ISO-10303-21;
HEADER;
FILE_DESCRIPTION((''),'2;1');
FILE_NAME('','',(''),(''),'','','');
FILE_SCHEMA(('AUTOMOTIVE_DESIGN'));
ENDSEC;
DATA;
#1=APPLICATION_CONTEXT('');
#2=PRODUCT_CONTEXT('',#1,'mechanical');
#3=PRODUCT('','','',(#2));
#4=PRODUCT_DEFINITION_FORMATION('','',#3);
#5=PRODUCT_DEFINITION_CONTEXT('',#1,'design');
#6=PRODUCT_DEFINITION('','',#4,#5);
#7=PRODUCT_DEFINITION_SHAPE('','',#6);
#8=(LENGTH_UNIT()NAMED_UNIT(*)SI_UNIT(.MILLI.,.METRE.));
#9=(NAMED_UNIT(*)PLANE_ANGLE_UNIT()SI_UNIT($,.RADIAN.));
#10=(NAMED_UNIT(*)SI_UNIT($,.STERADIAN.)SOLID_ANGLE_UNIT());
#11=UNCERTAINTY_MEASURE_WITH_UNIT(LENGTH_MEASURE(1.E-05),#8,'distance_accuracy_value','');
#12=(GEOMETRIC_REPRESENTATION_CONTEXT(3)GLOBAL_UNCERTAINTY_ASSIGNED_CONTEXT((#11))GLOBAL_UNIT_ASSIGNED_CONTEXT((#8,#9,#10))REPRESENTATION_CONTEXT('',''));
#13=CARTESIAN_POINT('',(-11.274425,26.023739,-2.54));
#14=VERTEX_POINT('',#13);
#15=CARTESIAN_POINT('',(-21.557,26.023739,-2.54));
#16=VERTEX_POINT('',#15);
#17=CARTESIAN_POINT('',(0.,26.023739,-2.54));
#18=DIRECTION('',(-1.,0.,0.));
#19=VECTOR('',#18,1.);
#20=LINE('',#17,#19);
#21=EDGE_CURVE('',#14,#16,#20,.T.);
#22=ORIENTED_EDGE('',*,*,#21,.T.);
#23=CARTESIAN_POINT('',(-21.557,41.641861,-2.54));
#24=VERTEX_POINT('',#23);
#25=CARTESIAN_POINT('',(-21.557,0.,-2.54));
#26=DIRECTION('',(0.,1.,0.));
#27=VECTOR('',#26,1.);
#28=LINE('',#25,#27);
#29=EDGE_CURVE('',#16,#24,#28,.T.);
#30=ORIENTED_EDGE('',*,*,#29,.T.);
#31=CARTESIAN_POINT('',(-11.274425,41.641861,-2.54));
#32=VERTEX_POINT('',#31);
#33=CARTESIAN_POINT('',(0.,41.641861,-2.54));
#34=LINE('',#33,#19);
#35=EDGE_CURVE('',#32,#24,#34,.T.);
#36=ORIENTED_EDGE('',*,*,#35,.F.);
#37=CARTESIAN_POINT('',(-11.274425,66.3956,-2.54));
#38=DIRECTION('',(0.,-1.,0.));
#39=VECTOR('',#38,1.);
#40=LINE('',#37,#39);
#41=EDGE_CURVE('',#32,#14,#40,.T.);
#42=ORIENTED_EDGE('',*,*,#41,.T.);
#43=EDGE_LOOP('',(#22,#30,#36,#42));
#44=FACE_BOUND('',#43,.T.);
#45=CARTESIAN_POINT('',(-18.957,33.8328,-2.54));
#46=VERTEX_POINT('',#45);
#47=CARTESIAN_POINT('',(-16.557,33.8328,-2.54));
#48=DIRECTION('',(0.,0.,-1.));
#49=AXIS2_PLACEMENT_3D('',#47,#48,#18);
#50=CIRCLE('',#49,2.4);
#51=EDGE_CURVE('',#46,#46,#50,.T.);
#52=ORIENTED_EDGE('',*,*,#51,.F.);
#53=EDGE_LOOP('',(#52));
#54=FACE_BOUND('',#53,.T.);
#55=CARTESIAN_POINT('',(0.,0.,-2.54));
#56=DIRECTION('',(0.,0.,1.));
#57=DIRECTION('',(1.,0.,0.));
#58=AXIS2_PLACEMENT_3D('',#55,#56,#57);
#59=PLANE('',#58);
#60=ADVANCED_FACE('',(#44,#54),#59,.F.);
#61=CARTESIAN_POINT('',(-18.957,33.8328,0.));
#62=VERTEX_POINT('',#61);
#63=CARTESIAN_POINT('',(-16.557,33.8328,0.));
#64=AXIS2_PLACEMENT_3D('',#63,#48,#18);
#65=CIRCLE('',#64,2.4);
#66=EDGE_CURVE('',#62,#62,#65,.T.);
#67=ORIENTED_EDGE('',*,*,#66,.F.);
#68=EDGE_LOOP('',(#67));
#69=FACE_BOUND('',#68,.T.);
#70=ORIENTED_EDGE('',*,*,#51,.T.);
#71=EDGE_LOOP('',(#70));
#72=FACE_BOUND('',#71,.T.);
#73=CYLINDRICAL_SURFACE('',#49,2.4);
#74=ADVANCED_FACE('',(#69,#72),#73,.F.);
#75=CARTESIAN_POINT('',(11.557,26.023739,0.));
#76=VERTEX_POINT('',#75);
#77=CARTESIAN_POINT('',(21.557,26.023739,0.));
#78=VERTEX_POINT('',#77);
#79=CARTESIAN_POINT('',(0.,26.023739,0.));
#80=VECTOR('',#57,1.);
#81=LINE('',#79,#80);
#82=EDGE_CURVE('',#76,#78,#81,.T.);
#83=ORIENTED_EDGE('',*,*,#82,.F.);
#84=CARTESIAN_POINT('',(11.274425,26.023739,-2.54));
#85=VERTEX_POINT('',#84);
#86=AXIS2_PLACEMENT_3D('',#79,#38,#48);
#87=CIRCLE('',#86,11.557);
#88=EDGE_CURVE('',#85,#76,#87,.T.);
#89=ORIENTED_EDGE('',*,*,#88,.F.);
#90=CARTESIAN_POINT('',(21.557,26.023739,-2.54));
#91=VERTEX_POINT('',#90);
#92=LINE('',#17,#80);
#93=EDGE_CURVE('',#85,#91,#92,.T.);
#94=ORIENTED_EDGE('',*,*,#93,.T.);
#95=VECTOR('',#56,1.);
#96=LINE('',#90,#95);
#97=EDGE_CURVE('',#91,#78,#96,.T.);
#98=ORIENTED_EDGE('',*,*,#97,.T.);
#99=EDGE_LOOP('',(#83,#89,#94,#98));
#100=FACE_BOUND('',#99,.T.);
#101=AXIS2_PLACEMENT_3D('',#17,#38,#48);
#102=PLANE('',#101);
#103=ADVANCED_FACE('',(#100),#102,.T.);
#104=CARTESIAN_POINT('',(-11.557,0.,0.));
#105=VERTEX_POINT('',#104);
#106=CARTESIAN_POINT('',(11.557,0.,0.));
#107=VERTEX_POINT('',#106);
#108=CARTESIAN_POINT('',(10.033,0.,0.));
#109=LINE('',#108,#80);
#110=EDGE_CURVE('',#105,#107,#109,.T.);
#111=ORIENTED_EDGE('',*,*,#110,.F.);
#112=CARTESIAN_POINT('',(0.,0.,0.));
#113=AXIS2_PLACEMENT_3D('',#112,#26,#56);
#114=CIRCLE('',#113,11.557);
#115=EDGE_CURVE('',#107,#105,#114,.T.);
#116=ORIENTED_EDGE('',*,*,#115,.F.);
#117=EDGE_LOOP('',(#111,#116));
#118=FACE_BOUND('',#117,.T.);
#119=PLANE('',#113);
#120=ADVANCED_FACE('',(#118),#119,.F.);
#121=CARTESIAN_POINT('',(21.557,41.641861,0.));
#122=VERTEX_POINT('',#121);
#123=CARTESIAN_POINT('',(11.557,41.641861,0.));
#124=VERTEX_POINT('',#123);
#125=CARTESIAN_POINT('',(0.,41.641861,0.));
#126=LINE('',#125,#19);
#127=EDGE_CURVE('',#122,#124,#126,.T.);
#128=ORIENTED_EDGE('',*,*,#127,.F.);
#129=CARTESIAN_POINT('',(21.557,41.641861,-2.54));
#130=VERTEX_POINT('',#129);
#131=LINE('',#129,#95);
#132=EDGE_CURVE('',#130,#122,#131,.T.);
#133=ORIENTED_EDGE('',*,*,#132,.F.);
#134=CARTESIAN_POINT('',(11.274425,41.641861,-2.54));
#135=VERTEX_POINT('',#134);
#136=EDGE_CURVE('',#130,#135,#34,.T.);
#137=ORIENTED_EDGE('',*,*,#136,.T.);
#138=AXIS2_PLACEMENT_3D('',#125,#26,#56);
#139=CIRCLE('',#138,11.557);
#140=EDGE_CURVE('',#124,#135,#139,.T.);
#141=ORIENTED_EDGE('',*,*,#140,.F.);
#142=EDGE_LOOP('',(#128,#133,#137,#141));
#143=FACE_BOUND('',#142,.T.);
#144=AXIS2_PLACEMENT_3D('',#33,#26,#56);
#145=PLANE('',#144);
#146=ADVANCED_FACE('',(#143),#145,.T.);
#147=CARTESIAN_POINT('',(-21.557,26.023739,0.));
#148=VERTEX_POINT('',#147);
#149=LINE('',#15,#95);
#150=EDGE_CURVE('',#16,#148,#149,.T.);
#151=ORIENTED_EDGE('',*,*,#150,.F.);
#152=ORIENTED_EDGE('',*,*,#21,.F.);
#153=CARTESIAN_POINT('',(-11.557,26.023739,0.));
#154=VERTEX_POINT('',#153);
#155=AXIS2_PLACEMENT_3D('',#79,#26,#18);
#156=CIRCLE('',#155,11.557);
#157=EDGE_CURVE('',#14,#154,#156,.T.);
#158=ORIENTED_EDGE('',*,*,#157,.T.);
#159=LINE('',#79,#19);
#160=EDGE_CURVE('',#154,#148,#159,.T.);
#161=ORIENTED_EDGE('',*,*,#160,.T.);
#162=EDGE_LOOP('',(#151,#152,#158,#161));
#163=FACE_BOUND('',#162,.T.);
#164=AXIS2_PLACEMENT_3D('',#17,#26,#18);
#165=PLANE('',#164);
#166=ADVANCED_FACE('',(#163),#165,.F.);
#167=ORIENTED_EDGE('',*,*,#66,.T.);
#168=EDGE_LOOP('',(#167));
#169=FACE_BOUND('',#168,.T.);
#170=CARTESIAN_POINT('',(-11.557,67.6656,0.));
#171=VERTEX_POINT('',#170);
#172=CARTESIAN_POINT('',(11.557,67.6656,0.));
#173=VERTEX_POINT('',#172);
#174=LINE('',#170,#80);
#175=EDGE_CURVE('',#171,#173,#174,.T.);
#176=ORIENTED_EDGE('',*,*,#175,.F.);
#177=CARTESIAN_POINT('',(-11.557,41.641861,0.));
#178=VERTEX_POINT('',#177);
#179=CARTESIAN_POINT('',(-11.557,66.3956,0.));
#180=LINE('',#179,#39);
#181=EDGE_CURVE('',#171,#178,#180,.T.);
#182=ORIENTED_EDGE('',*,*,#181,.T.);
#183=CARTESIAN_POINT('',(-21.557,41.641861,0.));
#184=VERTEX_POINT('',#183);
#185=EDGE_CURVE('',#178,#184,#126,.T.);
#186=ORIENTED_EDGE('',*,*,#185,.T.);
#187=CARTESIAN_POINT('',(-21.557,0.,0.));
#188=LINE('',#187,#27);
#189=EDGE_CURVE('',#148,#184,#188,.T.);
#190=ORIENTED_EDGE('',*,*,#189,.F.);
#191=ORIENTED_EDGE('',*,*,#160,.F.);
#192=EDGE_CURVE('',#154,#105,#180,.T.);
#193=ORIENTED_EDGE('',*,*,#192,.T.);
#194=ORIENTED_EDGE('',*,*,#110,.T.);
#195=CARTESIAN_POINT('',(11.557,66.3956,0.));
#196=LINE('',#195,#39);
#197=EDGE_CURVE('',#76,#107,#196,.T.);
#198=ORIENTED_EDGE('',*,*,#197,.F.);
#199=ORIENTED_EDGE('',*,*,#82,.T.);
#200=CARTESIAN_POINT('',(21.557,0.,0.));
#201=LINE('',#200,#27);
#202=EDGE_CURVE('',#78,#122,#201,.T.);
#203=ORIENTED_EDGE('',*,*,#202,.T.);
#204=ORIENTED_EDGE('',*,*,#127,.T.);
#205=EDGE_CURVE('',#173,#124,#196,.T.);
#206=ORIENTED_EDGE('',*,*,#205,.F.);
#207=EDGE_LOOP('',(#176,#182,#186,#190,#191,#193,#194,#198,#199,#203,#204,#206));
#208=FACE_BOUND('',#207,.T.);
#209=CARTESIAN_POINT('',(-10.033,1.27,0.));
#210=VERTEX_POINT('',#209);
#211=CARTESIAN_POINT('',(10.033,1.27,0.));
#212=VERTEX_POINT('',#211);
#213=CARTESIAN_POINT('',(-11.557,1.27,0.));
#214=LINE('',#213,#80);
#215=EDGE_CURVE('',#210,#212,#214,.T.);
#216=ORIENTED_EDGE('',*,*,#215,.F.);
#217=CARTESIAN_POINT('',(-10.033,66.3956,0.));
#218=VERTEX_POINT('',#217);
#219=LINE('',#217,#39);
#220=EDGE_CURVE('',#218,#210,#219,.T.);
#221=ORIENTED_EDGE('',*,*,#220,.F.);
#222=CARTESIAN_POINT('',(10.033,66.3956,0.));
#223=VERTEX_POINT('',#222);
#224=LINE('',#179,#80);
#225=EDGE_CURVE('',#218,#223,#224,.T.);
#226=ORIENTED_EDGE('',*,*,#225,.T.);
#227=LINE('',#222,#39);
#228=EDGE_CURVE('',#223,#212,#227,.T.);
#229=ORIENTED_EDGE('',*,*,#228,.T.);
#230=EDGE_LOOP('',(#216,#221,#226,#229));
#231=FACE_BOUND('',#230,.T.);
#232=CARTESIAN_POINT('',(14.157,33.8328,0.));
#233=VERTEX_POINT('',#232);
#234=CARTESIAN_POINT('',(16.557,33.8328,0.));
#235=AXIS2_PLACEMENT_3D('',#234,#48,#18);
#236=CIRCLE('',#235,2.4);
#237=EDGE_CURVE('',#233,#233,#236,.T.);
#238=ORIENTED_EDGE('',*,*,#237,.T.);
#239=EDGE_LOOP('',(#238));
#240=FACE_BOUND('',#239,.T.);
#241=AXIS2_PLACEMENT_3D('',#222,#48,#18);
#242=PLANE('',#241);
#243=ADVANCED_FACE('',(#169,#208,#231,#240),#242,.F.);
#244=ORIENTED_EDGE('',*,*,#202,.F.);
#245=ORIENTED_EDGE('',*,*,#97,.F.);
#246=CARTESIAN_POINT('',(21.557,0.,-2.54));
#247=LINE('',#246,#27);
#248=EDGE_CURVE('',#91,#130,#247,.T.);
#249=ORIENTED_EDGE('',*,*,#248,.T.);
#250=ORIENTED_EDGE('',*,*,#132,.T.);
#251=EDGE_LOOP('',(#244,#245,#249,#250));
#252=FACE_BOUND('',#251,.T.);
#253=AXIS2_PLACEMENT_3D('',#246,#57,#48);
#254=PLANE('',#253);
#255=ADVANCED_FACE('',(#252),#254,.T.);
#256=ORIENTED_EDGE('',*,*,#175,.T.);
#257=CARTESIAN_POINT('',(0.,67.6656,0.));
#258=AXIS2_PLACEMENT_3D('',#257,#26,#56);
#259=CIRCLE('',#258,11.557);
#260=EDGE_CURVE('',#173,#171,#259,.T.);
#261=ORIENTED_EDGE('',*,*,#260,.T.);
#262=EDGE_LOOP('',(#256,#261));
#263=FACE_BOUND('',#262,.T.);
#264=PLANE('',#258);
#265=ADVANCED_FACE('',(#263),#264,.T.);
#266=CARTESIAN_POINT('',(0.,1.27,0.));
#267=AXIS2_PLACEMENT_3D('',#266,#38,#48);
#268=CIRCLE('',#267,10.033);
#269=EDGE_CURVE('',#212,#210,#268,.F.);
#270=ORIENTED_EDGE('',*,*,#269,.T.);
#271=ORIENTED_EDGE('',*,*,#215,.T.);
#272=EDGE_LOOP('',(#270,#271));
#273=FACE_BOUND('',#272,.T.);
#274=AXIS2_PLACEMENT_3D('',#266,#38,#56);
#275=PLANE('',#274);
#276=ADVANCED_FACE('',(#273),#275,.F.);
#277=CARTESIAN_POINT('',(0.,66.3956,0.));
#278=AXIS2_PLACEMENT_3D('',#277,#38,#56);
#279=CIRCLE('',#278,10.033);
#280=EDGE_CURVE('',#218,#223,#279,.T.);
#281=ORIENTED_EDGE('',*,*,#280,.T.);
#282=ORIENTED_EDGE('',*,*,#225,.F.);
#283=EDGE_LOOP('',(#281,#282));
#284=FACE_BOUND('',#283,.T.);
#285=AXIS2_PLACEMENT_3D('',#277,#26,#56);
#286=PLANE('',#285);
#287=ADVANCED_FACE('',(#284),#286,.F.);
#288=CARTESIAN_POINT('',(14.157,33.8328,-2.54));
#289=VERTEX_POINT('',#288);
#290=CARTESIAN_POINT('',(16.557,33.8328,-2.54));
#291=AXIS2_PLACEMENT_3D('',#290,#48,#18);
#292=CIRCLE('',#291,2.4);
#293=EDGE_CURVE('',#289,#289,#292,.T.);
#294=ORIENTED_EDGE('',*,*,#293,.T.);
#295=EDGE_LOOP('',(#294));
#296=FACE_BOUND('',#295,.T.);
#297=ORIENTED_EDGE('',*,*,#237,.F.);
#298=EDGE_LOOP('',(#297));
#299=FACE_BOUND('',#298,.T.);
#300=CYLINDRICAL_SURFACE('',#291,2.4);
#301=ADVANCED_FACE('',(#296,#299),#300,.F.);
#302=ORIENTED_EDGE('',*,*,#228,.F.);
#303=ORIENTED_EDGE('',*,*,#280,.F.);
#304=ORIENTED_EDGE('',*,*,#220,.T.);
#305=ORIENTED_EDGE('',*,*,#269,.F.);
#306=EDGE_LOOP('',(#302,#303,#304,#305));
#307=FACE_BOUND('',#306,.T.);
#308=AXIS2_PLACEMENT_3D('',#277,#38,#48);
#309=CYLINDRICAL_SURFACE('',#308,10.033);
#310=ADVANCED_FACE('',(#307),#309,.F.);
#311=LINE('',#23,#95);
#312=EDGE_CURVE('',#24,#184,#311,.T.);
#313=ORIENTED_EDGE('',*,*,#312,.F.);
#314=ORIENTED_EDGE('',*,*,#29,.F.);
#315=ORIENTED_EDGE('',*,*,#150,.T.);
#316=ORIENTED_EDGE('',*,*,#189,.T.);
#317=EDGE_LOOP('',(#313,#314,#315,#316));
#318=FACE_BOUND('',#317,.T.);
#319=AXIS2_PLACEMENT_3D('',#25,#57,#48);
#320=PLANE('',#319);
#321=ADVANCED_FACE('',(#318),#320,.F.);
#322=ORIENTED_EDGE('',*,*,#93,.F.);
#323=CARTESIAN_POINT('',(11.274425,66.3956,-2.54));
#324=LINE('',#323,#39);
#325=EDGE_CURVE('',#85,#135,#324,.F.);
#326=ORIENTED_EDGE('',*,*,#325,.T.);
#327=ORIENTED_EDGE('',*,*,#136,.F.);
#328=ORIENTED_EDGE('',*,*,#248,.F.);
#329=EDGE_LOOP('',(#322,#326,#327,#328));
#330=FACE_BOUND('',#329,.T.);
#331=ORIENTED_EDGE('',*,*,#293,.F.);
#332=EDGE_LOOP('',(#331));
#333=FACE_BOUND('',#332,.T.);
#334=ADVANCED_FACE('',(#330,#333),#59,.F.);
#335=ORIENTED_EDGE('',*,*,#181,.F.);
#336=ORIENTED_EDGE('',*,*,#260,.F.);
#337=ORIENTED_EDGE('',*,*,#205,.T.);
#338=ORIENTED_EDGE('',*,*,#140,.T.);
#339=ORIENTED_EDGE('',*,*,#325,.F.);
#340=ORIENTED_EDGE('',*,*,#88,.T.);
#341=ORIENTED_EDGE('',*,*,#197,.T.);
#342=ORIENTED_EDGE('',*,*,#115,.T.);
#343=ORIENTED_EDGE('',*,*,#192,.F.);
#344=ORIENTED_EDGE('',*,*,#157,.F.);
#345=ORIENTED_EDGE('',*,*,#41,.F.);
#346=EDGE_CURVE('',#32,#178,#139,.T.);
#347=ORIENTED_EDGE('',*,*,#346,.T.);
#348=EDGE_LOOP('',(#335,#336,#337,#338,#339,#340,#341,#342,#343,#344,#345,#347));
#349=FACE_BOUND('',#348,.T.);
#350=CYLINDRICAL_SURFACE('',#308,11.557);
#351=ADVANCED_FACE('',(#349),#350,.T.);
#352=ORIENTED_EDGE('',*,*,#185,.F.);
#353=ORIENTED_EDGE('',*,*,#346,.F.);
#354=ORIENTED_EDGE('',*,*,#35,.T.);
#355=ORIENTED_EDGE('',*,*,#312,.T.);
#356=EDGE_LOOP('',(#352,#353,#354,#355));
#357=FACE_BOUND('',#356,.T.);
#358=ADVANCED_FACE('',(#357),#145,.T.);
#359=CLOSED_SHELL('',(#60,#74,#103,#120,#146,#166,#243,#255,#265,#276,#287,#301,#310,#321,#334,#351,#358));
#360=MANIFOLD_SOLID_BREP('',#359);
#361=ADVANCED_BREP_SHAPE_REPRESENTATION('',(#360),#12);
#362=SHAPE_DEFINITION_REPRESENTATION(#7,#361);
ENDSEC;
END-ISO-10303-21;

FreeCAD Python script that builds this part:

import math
import FreeCAD as App
import Part
import Sketcher
from FreeCAD import Vector
Q = App.Units.Quantity


def add_polygon(sketch, points):
    """Adds a closed chain of lines whose ends are joined by coincident constraints."""
    first, n = sketch.GeometryCount, len(points)
    for a, b in zip(points, points[1:] + points[:1]):
        sketch.addGeometry(Part.LineSegment(App.Vector(*a, 0), App.Vector(*b, 0)), False)
    for i in range(n):
        sketch.addConstraint(Sketcher.Constraint("Coincident", first + i, 2, first + (i + 1) % n, 1))

doc = App.newDocument("Part")
body = doc.addObject("PartDesign::Body", "Body")

sketch1 = body.newObject("Sketcher::SketchObject", "Sketch")
sketch1.AttachmentSupport = (doc.getObject("XZ_Plane"), [""])
sketch1.MapMode = "FlatFace"
sketch1.addGeometry(Part.LineSegment(Vector(-11.557, 0, 0), Vector(-10.033, 0, 0)), False)
sketch1.addGeometry(Part.ArcOfCircle(Part.Circle(Vector(0, 0, 0), Vector(0, 0, 1), 10.033), math.radians(180), math.radians(360)), False)
sketch1.addGeometry(Part.LineSegment(Vector(10.033, 0, 0), Vector(11.557, 0, 0)), False)
sketch1.addGeometry(Part.ArcOfCircle(Part.Circle(Vector(0, 0, 0), Vector(0, 0, 1), 11.557), math.radians(180), math.radians(360)), False)
sketch1.addConstraint(Sketcher.Constraint("Coincident", 0, 2, 1, 1))
sketch1.addConstraint(Sketcher.Constraint("Coincident", 1, 2, 2, 1))
sketch1.addConstraint(Sketcher.Constraint("Coincident", 2, 2, 3, 2))
sketch1.addConstraint(Sketcher.Constraint("Coincident", 3, 1, 0, 1))
sketch1.addConstraint(Sketcher.Constraint("Horizontal", 0))
sketch1.addConstraint(Sketcher.Constraint("Horizontal", 2))
sketch1.addConstraint(Sketcher.Constraint("Coincident", 1, 3, -1, 1))
sketch1.addConstraint(Sketcher.Constraint("Coincident", 3, 3, -1, 1))
sketch1.addConstraint(Sketcher.Constraint("PointOnObject", 0, 2, -1))
sketch1.addConstraint(Sketcher.Constraint("PointOnObject", 1, 2, -1))
sketch1.addConstraint(Sketcher.Constraint("Radius", 1, Q("0.395 in")))
sketch1.addConstraint(Sketcher.Constraint("Radius", 3, Q("0.455 in")))
pad1 = body.newObject("PartDesign::Pad", "Pad")
pad1.Profile = sketch1
pad1.Length = Q("2.614 in")
pad1.Reversed = True

sketch2 = body.newObject("Sketcher::SketchObject", "Sketch001")
sketch2.AttachmentSupport = (doc.getObject("XZ_Plane"), [""])
sketch2.MapMode = "FlatFace"
sketch2.AttachmentOffset = App.Placement(Vector(0, 0, -2.614 * 25.4), App.Rotation())
sketch2.addGeometry(Part.LineSegment(Vector(-11.557, 0, 0), Vector(11.557, 0, 0)), False)
sketch2.addGeometry(Part.ArcOfCircle(Part.Circle(Vector(0, 0, 0), Vector(0, 0, 1), 11.557), math.radians(180), math.radians(360)), False)
sketch2.addConstraint(Sketcher.Constraint("Coincident", 0, 1, 1, 1))
sketch2.addConstraint(Sketcher.Constraint("Coincident", 1, 2, 0, 2))
sketch2.addConstraint(Sketcher.Constraint("Horizontal", 0))
sketch2.addConstraint(Sketcher.Constraint("Coincident", 1, 3, -1, 1))
sketch2.addConstraint(Sketcher.Constraint("PointOnObject", 0, 1, -1))
sketch2.addConstraint(Sketcher.Constraint("Radius", 1, Q("0.455 in")))
pad2 = body.newObject("PartDesign::Pad", "Pad001")
pad2.Profile = sketch2
pad2.Length = Q("0.05 in")
pad2.Reversed = True
doc.recompute()

datumplane = body.newObject("PartDesign::Plane", "DatumPlane")
datumplane.AttachmentSupport = (doc.getObject("XZ_Plane"), [""])
datumplane.MapMode = "FlatFace"
datumplane.AttachmentOffset = App.Placement(Vector(0, 0, -1.332 * 25.4), App.Rotation())
mirrored = body.newObject("PartDesign::Mirrored", "Mirrored")
mirrored.Originals = [pad2]
mirrored.MirrorPlane = (datumplane, [""])
body.Tip = mirrored

sketch3 = body.newObject("Sketcher::SketchObject", "Sketch002")
sketch3.AttachmentSupport = (doc.getObject("XY_Plane"), [""])
sketch3.MapMode = "FlatFace"
add_polygon(sketch3, [(-21.557, 41.641861), (-21.557, 26.023739), (-10.033, 26.023739), (-10.033, 41.641861)])
sketch3.addGeometry(Part.Circle(Vector(-16.557, 33.8328, 0), Vector(0, 0, 1), 0.592133), False)
add_polygon(sketch3, [(10.033, 41.641861), (10.033, 26.023739), (21.557, 26.023739), (21.557, 41.641861)])
sketch3.addGeometry(Part.Circle(Vector(16.557, 33.8328, 0), Vector(0, 0, 1), 0.592133), False)
sketch3.addConstraint(Sketcher.Constraint("Vertical", 0))
sketch3.addConstraint(Sketcher.Constraint("Horizontal", 1))
sketch3.addConstraint(Sketcher.Constraint("Vertical", 2))
sketch3.addConstraint(Sketcher.Constraint("Horizontal", 3))
sketch3.addConstraint(Sketcher.Constraint("Vertical", 5))
sketch3.addConstraint(Sketcher.Constraint("Horizontal", 6))
sketch3.addConstraint(Sketcher.Constraint("Vertical", 7))
sketch3.addConstraint(Sketcher.Constraint("Horizontal", 8))
sketch3.addConstraint(Sketcher.Constraint("Equal", 4, 9))
sketch3.addConstraint(Sketcher.Constraint("Symmetric", 4, 3, 9, 3, -2))
sketch3.addConstraint(Sketcher.Constraint("Symmetric", 1, 2, 5, 2, -2))
sketch3.addConstraint(Sketcher.Constraint("Symmetric", 3, 2, 7, 2, -2))
sketch3.addConstraint(Sketcher.Constraint("DistanceX", 1, 2, 5, 2, Q("0.79 in")))
sketch3.addConstraint(Sketcher.Constraint("DistanceY", -1, 1, 4, 3, Q("1.332 in")))
sketch3.addConstraint(Sketcher.Constraint("Diameter", 4, Q("1.184266 mm")))
sketch3.addConstraint(Sketcher.Constraint("DistanceX", 1, 1, 1, 2, Q("11.524 mm")))
sketch3.addConstraint(Sketcher.Constraint("DistanceX", 4, 3, -1, 1, Q("16.557 mm")))
sketch3.addConstraint(Sketcher.Constraint("DistanceY", 0, 2, 0, 1, Q("15.618122 mm")))
sketch3.addConstraint(Sketcher.Constraint("DistanceY", -1, 1, 0, 2, Q("26.023739 mm")))
pad3 = body.newObject("PartDesign::Pad", "Pad002")
pad3.Profile = sketch3
pad3.Length = Q("0.1 in")
pad3.Reversed = True

sketch4 = body.newObject("Sketcher::SketchObject", "Sketch003")
sketch4.AttachmentSupport = (doc.getObject("XY_Plane"), [""])
sketch4.MapMode = "FlatFace"
sketch4.AttachmentOffset = App.Placement(Vector(0, 0, -0.1 * 25.4), App.Rotation())
sketch4.addGeometry(Part.Circle(Vector(16.557, 33.8328, 0), Vector(0, 0, 1), 2.4), False)
sketch4.addGeometry(Part.Circle(Vector(-16.557, 33.8328, 0), Vector(0, 0, 1), 2.4), False)
sketch4.addConstraint(Sketcher.Constraint("Equal", 0, 1))
sketch4.addConstraint(Sketcher.Constraint("Symmetric", 0, 3, 1, 3, -2))
sketch4.addConstraint(Sketcher.Constraint("Diameter", 0, Q("4.8 mm")))
sketch4.addConstraint(Sketcher.Constraint("DistanceY", -1, 1, 0, 3, Q("1.332 in")))
sketch4.addConstraint(Sketcher.Constraint("DistanceX", -1, 1, 0, 3, Q("16.557 mm")))
doc.recompute()
hole = body.newObject("PartDesign::Hole", "Hole")
hole.Profile = sketch4
hole.ThreadType = "None"
hole.Diameter = 4.8
hole.DepthType = "ThroughAll"
hole.Reversed = True

doc.recompute()
